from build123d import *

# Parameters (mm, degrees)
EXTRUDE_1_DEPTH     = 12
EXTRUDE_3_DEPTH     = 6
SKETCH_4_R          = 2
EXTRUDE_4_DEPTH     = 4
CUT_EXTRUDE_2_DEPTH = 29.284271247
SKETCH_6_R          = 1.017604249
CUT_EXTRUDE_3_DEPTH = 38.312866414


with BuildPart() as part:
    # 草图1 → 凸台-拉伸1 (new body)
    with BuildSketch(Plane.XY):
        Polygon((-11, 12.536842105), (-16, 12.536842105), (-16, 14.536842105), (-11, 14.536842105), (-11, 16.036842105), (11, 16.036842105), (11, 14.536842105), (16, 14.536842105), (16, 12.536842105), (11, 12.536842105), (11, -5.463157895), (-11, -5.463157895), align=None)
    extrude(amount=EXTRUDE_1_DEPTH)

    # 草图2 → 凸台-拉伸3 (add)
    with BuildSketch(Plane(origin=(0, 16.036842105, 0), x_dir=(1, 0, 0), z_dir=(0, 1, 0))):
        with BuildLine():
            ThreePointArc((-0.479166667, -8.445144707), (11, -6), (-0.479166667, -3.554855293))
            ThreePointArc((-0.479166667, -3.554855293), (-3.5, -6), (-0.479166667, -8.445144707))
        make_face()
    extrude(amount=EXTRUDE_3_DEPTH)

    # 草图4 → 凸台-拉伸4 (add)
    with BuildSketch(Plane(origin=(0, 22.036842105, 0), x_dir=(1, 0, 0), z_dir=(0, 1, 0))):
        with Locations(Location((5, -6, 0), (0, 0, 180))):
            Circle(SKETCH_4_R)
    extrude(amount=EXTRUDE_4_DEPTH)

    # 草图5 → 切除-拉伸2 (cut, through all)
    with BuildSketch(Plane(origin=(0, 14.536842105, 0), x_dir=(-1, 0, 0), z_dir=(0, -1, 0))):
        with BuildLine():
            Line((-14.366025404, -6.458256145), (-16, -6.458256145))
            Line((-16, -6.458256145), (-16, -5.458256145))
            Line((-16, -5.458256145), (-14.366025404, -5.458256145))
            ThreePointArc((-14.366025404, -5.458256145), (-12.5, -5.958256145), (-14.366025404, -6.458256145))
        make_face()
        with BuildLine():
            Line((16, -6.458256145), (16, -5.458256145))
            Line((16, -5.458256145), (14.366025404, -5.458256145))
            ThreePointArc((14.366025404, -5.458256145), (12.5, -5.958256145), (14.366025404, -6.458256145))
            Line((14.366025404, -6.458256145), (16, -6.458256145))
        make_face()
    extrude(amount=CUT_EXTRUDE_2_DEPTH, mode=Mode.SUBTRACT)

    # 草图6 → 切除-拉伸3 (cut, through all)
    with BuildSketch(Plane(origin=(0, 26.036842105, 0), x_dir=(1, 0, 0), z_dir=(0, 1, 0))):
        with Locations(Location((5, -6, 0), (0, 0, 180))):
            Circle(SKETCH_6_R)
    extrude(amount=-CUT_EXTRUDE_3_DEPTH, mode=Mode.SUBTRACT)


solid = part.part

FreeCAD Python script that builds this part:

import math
import FreeCAD as App
import Part
import Sketcher
Q = App.Units.Quantity

doc = App.newDocument("Part")
body = doc.addObject("PartDesign::Body", "Body")

# Sketch on XY plane
sketch1 = body.newObject("Sketcher::SketchObject", "Sketch")
sketch1.AttachmentSupport = (doc.getObject("XY_Plane"), [""])
sketch1.MapMode = "FlatFace"
sketch1.addGeometry([
    Part.LineSegment(App.Vector(-16, 12.536842, 0), App.Vector(-11, 12.536842, 0)),  # 0
    Part.LineSegment(App.Vector(-11, 12.536842, 0), App.Vector(-11, -5.463158, 0)),  # 1
    Part.LineSegment(App.Vector(-11, -5.463158, 0), App.Vector(11, -5.463158, 0)),  # 2
    Part.LineSegment(App.Vector(11, -5.463158, 0), App.Vector(11, 12.536842, 0)),  # 3
    Part.LineSegment(App.Vector(11, 12.536842, 0), App.Vector(16, 12.536842, 0)),  # 4
    Part.LineSegment(App.Vector(16, 12.536842, 0), App.Vector(16, 14.536842, 0)),  # 5
    Part.LineSegment(App.Vector(16, 14.536842, 0), App.Vector(11, 14.536842, 0)),  # 6
    Part.LineSegment(App.Vector(11, 14.536842, 0), App.Vector(11, 16.036842, 0)),  # 7
    Part.LineSegment(App.Vector(11, 16.036842, 0), App.Vector(-11, 16.036842, 0)),  # 8
    Part.LineSegment(App.Vector(-11, 16.036842, 0), App.Vector(-11, 14.536842, 0)),  # 9
    Part.LineSegment(App.Vector(-11, 14.536842, 0), App.Vector(-16, 14.536842, 0)),  # 10
    Part.LineSegment(App.Vector(-16, 14.536842, 0), App.Vector(-16, 12.536842, 0)),  # 11
], False)
sketch1.addConstraint([
    Sketcher.Constraint("Coincident", 0, 2, 1, 1),
    Sketcher.Constraint("Coincident", 1, 2, 2, 1),
    Sketcher.Constraint("Coincident", 2, 2, 3, 1),
    Sketcher.Constraint("Coincident", 3, 2, 4, 1),
    Sketcher.Constraint("Coincident", 4, 2, 5, 1),
    Sketcher.Constraint("Coincident", 5, 2, 6, 1),
    Sketcher.Constraint("Coincident", 6, 2, 7, 1),
    Sketcher.Constraint("Coincident", 7, 2, 8, 1),
    Sketcher.Constraint("Coincident", 8, 2, 9, 1),
    Sketcher.Constraint("Coincident", 9, 2, 10, 1),
    Sketcher.Constraint("Coincident", 10, 2, 11, 1),
    Sketcher.Constraint("Coincident", 11, 2, 0, 1),
    Sketcher.Constraint("Horizontal", 0),
    Sketcher.Constraint("Vertical", 1),
    Sketcher.Constraint("Horizontal", 2),
    Sketcher.Constraint("Vertical", 3),
    Sketcher.Constraint("Horizontal", 4),
    Sketcher.Constraint("Vertical", 5),
    Sketcher.Constraint("Horizontal", 6),
    Sketcher.Constraint("Vertical", 7),
    Sketcher.Constraint("Horizontal", 8),
    Sketcher.Constraint("Vertical", 9),
    Sketcher.Constraint("Horizontal", 10),
    Sketcher.Constraint("Vertical", 11),
    Sketcher.Constraint("Symmetric", 0, 2, 3, 2, -2),
    Sketcher.Constraint("Symmetric", 6, 2, 9, 2, -2),
    Sketcher.Constraint("Vertical", 3, 2, 6, 2),
    Sketcher.Constraint("Equal", 0, 4),
    Sketcher.Constraint("DistanceX", 0, 1, 0, 2, Q("5 mm")),
    Sketcher.Constraint("DistanceX", 2, 1, 2, 2, Q("22 mm")),
    Sketcher.Constraint("DistanceY", 1, 2, 1, 1, Q("18 mm")),
    Sketcher.Constraint("DistanceY", 5, 1, 5, 2, Q("2 mm")),
    Sketcher.Constraint("DistanceY", 7, 1, 7, 2, Q("1.5 mm")),
    Sketcher.Constraint("DistanceY", -1, 1, 0, 2, Q("12.536842 mm")),
])
pad1 = body.newObject("PartDesign::Pad", "Pad")
pad1.Profile = sketch1
pad1.Length = 12

# Sketch on XZ plane
sketch2 = body.newObject("Sketcher::SketchObject", "Sketch001")
sketch2.AttachmentSupport = (doc.getObject("XZ_Plane"), [""])
sketch2.MapMode = "FlatFace"
sketch2.AttachmentOffset = App.Placement(App.Vector(0, 0, -16.036842), App.Rotation())
sketch2.addGeometry([
    Part.ArcOfCircle(Part.Circle(App.Vector(5, 6, 0), App.Vector(0, 0, 1), 6), math.radians(-155.950602), math.radians(155.950602)),
    Part.ArcOfCircle(Part.Circle(App.Vector(-1, 6, 0), App.Vector(0, 0, 1), 2.5), math.radians(77.975301), math.radians(282.024699)),
], False)
sketch2.addConstraint([
    Sketcher.Constraint("Coincident", 0, 1, 1, 2),
    Sketcher.Constraint("Coincident", 1, 1, 0, 2),
    Sketcher.Constraint("Horizontal", 0, 3, 1, 3),
    Sketcher.Constraint("Radius", 0, Q("6 mm")),
    Sketcher.Constraint("Radius", 1, Q("2.5 mm")),
    Sketcher.Constraint("DistanceX", -1, 1, 0, 3, Q("5 mm")),
    Sketcher.Constraint("DistanceY", -1, 1, 0, 3, Q("6 mm")),
    Sketcher.Constraint("DistanceX", 1, 3, -1, 1, Q("1 mm")),
])
pad2 = body.newObject("PartDesign::Pad", "Pad001")
pad2.Profile = sketch2
pad2.Length = 6
pad2.Reversed = True

# Sketch on XZ plane
sketch3 = body.newObject("Sketcher::SketchObject", "Sketch002")
sketch3.AttachmentSupport = (doc.getObject("XZ_Plane"), [""])
sketch3.MapMode = "FlatFace"
sketch3.AttachmentOffset = App.Placement(App.Vector(0, 0, -22.036842), App.Rotation())
sketch3.addGeometry(Part.Circle(App.Vector(5, 6, 0), App.Vector(0, 0, 1), 2), False)
sketch3.addConstraint([
    Sketcher.Constraint("Diameter", 0, Q("4 mm")),
    Sketcher.Constraint("DistanceX", -1, 1, 0, 3, Q("5 mm")),
    Sketcher.Constraint("DistanceY", -1, 1, 0, 3, Q("6 mm")),
])
pad3 = body.newObject("PartDesign::Pad", "Pad002")
pad3.Profile = sketch3
pad3.Length = 4
pad3.Reversed = True

# Sketch on XZ plane
sketch4 = body.newObject("Sketcher::SketchObject", "Sketch003")
sketch4.AttachmentSupport = (doc.getObject("XZ_Plane"), [""])
sketch4.MapMode = "FlatFace"
sketch4.AttachmentOffset = App.Placement(App.Vector(0, 0, -14.536842), App.Rotation())
sketch4.addGeometry([
    Part.LineSegment(App.Vector(16, 6.458256, 0), App.Vector(14.366025, 6.458256, 0)),  # 0
    Part.ArcOfCircle(Part.Circle(App.Vector(13.5, 5.958256, 0), App.Vector(0, 0, 1), 1), math.radians(30), math.radians(330)),  # 1
    Part.LineSegment(App.Vector(14.366025, 5.458256, 0), App.Vector(16, 5.458256, 0)),  # 2
    Part.LineSegment(App.Vector(16, 5.458256, 0), App.Vector(16, 6.458256, 0)),  # 3
    Part.LineSegment(App.Vector(-16, 6.458256, 0), App.Vector(-16, 5.458256, 0)),  # 4
    Part.LineSegment(App.Vector(-16, 5.458256, 0), App.Vector(-14.366025, 5.458256, 0)),  # 5
    Part.ArcOfCircle(Part.Circle(App.Vector(-13.5, 5.958256, 0), App.Vector(0, 0, 1), 1), math.radians(-150), math.radians(150)),  # 6
    Part.LineSegment(App.Vector(-14.366025, 6.458256, 0), App.Vector(-16, 6.458256, 0)),  # 7
], False)
sketch4.addConstraint([
    Sketcher.Constraint("Coincident", 0, 2, 1, 1),
    Sketcher.Constraint("Coincident", 1, 2, 2, 1),
    Sketcher.Constraint("Coincident", 2, 2, 3, 1),
    Sketcher.Constraint("Coincident", 3, 2, 0, 1),
    Sketcher.Constraint("Coincident", 4, 2, 5, 1),
    Sketcher.Constraint("Coincident", 5, 2, 6, 1),
    Sketcher.Constraint("Coincident", 6, 2, 7, 1),
    Sketcher.Constraint("Coincident", 7, 2, 4, 1),
    Sketcher.Constraint("Horizontal", 0),
    Sketcher.Constraint("Horizontal", 2),
    Sketcher.Constraint("Vertical", 3),
    Sketcher.Constraint("Vertical", 4),
    Sketcher.Constraint("Horizontal", 5),
    Sketcher.Constraint("Horizontal", 7),
    Sketcher.Constraint("Equal", 1, 6),
    Sketcher.Constraint("Symmetric", 1, 3, 6, 3, -2),
    Sketcher.Constraint("Symmetric", 2, 2, 4, 2, -2),
    Sketcher.Constraint("Horizontal", 3, 2, 6, 2),
    Sketcher.Constraint("Vertical", 0, 2, 1, 2),
    Sketcher.Constraint("Radius", 1, Q("1 mm")),
    Sketcher.Constraint("DistanceY", 3, 1, 3, 2, Q("1 mm")),
    Sketcher.Constraint("DistanceX", -1, 1, 2, 2, Q("16 mm")),
    Sketcher.Constraint("DistanceX", 6, 3, 1, 3, Q("27 mm")),
    Sketcher.Constraint("DistanceY", -1, 1, 1, 3, Q("5.958256 mm")),
])
pocket1 = body.newObject("PartDesign::Pocket", "Pocket")
pocket1.Profile = sketch4
pocket1.Type = "ThroughAll"
pocket1.Reversed = True

# Sketch on XZ plane
sketch5 = body.newObject("Sketcher::SketchObject", "Sketch004")
sketch5.AttachmentSupport = (doc.getObject("XZ_Plane"), [""])
sketch5.MapMode = "FlatFace"
sketch5.AttachmentOffset = App.Placement(App.Vector(0, 0, -26.036842), App.Rotation())
sketch5.addGeometry(Part.Circle(App.Vector(5, 6, 0), App.Vector(0, 0, 1), 1.017604), False)
sketch5.addConstraint([
    Sketcher.Constraint("DistanceX", -1, 1, 0, 3, Q("5 mm")),
    Sketcher.Constraint("DistanceY", -1, 1, 0, 3, Q("6 mm")),
    Sketcher.Constraint("Diameter", 0, Q("2.035208 mm")),
])
pocket2 = body.newObject("PartDesign::Pocket", "Pocket001")
pocket2.Profile = sketch5
pocket2.Type = "ThroughAll"
pocket2.Reversed = True

doc.recompute()
